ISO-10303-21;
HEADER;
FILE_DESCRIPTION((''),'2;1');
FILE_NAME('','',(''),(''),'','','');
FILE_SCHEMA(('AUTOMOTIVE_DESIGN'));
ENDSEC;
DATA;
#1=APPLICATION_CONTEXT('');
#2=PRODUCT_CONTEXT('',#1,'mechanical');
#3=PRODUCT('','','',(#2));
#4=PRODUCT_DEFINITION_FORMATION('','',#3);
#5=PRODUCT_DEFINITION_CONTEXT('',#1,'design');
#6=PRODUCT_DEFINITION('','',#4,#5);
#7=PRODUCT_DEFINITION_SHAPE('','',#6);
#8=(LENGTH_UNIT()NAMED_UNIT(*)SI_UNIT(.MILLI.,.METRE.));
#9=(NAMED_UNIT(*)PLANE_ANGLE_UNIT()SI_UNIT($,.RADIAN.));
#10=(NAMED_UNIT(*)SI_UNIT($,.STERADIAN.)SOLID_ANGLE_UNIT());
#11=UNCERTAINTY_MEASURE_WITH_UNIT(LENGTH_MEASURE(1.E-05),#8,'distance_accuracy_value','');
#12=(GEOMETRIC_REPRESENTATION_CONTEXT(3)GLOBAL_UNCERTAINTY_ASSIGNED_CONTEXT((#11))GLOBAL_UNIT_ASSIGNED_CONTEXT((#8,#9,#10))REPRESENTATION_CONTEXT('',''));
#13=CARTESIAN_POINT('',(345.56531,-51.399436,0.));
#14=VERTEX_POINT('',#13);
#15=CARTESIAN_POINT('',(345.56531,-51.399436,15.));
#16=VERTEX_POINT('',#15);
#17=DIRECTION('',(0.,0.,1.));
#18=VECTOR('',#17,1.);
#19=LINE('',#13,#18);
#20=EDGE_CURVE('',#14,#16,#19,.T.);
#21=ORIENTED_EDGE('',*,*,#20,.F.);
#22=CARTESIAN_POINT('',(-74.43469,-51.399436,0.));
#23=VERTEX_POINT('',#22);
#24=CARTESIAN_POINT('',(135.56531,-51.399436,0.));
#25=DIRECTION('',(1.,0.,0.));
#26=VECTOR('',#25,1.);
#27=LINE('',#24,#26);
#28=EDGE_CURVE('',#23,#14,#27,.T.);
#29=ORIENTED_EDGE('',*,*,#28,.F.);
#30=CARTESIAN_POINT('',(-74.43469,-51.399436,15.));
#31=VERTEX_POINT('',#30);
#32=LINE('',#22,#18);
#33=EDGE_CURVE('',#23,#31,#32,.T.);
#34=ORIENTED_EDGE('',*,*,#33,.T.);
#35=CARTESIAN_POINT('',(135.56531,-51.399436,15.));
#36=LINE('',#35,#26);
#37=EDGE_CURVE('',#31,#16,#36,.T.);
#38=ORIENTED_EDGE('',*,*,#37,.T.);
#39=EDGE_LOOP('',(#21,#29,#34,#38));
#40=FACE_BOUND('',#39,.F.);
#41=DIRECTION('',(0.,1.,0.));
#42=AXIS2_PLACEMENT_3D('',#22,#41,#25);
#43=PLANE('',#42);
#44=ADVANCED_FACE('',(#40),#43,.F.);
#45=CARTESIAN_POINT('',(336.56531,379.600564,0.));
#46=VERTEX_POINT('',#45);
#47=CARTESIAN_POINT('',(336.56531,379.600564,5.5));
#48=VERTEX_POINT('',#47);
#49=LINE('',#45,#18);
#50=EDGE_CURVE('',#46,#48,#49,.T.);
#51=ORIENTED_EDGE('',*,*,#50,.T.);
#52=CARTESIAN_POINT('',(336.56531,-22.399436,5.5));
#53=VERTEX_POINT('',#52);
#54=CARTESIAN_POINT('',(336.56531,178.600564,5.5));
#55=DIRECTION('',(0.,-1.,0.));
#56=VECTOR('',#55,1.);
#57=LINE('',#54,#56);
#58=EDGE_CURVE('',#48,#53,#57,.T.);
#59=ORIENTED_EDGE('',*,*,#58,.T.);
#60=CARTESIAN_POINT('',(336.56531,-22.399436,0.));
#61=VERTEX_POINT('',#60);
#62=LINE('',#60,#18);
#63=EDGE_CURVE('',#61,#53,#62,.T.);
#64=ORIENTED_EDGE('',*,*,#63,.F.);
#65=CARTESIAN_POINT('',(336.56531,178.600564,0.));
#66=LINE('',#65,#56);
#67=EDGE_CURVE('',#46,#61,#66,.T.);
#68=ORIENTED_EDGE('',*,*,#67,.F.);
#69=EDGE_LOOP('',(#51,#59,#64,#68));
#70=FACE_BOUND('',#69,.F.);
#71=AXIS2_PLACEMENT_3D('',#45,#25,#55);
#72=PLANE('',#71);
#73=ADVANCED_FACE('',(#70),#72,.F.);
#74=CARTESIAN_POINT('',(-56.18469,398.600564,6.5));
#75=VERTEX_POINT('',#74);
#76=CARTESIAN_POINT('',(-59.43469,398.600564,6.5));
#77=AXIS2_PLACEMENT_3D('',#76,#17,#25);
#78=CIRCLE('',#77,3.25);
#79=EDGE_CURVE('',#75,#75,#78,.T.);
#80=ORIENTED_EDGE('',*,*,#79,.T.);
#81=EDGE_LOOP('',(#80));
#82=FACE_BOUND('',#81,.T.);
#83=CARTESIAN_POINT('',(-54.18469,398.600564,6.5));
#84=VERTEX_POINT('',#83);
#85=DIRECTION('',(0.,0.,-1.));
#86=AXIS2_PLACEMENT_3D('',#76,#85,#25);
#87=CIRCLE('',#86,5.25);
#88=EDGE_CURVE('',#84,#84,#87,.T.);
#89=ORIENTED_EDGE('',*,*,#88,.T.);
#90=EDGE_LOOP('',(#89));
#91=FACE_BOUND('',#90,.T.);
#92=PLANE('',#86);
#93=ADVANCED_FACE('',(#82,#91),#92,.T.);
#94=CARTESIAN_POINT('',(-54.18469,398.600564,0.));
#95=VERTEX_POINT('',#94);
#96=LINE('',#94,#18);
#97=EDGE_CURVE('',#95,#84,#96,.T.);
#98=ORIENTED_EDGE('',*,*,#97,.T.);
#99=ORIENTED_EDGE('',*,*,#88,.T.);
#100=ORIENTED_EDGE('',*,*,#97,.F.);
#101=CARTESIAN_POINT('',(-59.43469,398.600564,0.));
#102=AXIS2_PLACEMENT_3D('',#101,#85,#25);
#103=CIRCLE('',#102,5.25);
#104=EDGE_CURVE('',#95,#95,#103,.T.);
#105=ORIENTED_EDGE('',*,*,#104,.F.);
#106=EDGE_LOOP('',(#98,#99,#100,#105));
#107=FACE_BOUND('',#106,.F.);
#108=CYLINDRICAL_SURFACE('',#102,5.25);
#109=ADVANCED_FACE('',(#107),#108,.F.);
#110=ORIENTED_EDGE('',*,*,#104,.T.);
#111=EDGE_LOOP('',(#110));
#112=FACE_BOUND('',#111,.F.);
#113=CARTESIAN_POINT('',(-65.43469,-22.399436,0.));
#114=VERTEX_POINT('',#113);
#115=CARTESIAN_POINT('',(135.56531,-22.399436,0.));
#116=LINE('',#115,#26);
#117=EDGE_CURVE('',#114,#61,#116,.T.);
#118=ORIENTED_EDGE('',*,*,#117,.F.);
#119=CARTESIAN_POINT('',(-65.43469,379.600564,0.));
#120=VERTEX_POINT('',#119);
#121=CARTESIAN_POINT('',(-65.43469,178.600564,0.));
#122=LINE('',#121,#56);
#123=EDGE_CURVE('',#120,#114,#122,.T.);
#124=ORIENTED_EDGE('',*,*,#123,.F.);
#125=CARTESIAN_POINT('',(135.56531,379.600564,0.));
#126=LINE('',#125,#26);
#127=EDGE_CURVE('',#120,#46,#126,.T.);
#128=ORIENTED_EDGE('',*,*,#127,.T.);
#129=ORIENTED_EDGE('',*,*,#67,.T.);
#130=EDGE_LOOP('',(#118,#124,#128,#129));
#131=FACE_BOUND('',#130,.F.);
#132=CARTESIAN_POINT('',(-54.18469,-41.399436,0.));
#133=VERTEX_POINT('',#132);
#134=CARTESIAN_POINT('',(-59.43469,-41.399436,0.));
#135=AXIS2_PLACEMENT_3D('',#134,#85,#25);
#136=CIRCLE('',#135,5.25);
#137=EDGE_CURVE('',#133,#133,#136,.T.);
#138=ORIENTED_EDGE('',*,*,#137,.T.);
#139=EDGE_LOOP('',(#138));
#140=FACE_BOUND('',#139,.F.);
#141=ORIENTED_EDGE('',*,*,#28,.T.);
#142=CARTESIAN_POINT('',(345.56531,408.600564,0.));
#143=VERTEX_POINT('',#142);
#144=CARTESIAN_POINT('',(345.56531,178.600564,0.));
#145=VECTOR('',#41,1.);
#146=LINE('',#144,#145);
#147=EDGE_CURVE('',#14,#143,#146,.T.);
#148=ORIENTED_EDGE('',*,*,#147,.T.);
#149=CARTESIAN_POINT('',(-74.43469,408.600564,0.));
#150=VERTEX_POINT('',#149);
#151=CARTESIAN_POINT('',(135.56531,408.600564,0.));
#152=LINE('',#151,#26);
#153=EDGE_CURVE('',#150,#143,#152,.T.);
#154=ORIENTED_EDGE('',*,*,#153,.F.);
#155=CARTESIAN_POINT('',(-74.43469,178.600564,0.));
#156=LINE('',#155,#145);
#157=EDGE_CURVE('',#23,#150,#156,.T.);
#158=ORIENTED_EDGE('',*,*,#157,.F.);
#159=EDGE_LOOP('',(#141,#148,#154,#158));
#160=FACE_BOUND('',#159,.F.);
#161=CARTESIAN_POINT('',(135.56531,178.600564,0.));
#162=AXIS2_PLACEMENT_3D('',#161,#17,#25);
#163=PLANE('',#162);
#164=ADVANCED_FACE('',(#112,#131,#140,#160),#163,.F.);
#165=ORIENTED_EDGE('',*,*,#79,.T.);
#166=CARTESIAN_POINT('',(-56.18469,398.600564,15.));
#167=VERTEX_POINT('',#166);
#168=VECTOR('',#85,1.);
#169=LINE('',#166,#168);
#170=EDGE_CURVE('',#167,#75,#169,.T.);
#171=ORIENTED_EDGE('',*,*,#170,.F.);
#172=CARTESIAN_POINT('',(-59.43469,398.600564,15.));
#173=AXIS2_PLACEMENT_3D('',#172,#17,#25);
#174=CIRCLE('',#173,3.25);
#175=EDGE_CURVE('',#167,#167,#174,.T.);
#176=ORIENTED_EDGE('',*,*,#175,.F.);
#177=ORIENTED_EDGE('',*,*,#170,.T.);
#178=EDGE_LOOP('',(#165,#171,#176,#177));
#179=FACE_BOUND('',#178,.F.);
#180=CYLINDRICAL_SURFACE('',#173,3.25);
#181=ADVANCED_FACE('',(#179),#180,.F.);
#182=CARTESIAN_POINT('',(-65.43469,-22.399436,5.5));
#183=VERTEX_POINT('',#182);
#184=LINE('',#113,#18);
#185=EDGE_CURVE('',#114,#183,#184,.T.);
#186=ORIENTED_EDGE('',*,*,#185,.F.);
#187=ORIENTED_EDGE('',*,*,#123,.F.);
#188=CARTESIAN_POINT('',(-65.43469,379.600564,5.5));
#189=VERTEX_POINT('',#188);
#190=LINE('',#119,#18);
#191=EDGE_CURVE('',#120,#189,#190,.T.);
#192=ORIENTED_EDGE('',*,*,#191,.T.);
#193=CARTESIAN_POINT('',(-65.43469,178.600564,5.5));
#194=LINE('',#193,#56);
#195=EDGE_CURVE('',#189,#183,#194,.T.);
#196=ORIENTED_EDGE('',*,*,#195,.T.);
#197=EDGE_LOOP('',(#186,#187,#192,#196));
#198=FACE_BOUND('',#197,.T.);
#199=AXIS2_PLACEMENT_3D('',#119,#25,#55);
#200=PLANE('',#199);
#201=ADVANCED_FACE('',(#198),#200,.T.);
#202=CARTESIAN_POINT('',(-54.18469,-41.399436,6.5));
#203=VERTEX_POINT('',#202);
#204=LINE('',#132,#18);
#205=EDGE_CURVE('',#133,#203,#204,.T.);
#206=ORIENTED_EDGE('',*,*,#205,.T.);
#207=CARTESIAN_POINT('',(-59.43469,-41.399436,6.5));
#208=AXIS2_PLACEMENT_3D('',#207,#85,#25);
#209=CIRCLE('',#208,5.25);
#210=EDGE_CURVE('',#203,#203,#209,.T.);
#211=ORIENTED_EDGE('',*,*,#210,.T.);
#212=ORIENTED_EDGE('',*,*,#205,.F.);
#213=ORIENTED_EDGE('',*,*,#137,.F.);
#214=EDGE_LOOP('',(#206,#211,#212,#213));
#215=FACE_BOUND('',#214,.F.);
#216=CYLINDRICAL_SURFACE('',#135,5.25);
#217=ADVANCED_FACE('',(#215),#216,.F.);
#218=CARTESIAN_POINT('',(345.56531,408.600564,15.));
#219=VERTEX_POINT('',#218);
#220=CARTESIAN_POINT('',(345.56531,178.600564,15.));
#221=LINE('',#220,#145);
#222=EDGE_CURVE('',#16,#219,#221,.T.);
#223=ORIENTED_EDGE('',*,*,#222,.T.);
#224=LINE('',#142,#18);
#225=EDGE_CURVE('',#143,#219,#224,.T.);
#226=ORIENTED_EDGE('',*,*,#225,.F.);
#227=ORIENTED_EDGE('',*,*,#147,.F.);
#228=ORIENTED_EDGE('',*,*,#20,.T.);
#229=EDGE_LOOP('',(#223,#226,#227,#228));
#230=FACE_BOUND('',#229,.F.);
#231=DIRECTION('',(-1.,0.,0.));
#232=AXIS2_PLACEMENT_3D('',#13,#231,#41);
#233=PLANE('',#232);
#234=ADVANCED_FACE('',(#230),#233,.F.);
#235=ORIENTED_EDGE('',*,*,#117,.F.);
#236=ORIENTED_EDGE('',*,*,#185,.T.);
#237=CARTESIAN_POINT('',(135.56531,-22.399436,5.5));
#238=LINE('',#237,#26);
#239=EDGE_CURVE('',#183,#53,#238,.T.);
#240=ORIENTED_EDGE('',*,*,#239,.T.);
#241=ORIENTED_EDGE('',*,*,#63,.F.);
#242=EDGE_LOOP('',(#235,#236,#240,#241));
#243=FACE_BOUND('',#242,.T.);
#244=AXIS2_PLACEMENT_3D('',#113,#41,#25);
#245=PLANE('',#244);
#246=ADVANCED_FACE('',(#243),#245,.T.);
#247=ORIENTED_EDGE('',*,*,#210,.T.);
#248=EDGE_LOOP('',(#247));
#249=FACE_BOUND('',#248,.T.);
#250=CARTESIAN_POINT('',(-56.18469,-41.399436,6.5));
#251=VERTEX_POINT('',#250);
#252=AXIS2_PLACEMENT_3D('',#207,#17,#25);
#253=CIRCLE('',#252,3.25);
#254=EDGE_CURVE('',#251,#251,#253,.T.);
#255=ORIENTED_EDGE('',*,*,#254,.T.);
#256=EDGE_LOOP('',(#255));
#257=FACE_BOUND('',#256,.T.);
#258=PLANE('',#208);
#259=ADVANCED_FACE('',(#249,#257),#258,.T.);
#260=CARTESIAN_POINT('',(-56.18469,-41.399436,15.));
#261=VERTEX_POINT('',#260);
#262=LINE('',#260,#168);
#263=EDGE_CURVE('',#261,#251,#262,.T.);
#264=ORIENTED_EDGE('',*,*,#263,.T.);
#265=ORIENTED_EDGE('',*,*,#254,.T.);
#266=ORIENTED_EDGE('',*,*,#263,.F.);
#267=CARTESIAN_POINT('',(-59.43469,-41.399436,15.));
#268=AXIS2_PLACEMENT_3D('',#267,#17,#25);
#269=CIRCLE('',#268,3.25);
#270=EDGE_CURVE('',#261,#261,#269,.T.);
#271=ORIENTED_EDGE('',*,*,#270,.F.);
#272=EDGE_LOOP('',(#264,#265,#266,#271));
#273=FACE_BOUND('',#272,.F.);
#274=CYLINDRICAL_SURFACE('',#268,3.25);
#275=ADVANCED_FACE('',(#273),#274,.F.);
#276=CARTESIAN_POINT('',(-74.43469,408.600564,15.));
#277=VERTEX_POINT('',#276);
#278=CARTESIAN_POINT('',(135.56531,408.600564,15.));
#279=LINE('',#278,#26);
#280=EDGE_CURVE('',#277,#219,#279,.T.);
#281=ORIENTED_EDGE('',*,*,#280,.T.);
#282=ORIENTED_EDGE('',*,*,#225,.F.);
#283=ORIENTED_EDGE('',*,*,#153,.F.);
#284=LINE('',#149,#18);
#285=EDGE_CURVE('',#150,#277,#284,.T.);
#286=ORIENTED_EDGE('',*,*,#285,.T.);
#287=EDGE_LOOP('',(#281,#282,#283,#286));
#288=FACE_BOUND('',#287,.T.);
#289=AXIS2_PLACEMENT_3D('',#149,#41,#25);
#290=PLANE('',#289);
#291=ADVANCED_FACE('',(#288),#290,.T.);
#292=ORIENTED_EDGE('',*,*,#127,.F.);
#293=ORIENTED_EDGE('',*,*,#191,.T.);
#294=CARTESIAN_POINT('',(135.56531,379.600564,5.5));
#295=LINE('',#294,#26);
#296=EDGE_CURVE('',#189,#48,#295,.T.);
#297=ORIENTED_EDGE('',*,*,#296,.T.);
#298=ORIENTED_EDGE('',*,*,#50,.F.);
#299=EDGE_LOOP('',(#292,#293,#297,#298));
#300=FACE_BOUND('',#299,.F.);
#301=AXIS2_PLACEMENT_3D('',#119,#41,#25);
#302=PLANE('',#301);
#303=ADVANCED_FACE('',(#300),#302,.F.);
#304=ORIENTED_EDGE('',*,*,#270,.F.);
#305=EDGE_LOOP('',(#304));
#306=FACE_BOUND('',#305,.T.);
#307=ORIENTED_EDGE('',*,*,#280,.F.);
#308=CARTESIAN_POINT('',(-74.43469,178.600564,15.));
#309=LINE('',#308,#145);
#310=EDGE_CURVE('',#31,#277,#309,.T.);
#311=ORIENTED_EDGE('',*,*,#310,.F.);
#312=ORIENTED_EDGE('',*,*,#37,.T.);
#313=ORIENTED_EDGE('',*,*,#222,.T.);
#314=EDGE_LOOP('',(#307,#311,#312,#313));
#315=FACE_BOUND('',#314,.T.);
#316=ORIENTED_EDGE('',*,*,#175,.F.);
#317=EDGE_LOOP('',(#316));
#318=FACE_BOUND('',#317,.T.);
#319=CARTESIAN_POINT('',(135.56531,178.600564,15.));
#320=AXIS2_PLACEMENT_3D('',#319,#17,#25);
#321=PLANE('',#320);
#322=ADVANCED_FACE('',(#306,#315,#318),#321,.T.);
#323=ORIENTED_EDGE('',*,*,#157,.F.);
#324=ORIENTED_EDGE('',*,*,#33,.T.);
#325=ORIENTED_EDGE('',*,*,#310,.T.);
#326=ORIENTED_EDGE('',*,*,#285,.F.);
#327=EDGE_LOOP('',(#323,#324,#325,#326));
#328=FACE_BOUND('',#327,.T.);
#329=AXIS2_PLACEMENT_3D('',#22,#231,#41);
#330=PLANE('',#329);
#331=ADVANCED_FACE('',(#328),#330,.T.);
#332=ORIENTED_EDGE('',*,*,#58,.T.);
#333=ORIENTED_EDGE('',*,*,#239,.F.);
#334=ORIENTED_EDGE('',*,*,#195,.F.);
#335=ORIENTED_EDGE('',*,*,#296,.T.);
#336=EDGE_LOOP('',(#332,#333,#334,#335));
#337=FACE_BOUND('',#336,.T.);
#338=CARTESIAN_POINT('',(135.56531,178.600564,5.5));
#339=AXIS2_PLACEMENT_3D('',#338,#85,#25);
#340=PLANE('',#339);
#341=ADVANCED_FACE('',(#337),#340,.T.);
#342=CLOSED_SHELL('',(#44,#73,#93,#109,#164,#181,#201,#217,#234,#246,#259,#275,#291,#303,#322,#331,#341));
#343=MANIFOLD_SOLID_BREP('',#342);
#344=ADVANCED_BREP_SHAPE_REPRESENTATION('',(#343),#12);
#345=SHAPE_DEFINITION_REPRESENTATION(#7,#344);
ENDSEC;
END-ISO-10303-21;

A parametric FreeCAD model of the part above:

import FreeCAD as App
import Part
import Sketcher

V = App.Vector
Q = App.Units.Quantity

doc = App.newDocument("Part")
body = doc.addObject("PartDesign::Body", "Body")

# Sketch on XY plane
sketch1 = doc.addObject("Sketcher::SketchObject", "Sketch")
body.addObject(sketch1)
sketch1.AttachmentSupport = (doc.XY_Plane, [""])
sketch1.MapMode = "FlatFace"
sketch1.addGeometry([
    Part.LineSegment(V(-74, 409, 0), V(-74, -51, 0)),
    Part.LineSegment(V(-74, -51, 0), V(346, -51, 0)),
    Part.LineSegment(V(346, -51, 0), V(346, 409, 0)),
    Part.LineSegment(V(346, 409, 0), V(-74, 409, 0)),
], False)
sketch1.addConstraint([
    Sketcher.Constraint("Coincident", 0, 2, 1, 1),
    Sketcher.Constraint("Coincident", 1, 2, 2, 1),
    Sketcher.Constraint("Coincident", 2, 2, 3, 1),
    Sketcher.Constraint("Coincident", 3, 2, 0, 1),
    Sketcher.Constraint("Vertical", 0),
    Sketcher.Constraint("Horizontal", 1),
    Sketcher.Constraint("Vertical", 2),
    Sketcher.Constraint("Horizontal", 3),
    Sketcher.Constraint("DistanceX", 1, 1, 1, 2, Q("420 mm")),
    Sketcher.Constraint("DistanceY", 0, 2, 0, 1, Q("460 mm")),
    Sketcher.Constraint("DistanceX", 0, 2, -1, 1, Q("74.43469 mm")),
    Sketcher.Constraint("DistanceY", 0, 2, -1, 1, Q("51.399436 mm")),
])
pad1 = doc.addObject("PartDesign::Pad", "Pad")
body.addObject(pad1)
pad1.Profile = sketch1
pad1.Length = 15

# Sketch on XY plane
sketch2 = doc.addObject("Sketcher::SketchObject", "Sketch001")
body.addObject(sketch2)
sketch2.AttachmentSupport = (doc.XY_Plane, [""])
sketch2.MapMode = "FlatFace"
sketch2.AttachmentOffset = App.Placement(V(0, 0, 15), App.Rotation())
sketch2.addGeometry([
    Part.Circle(V(-59.4, -41.4, 0), V(0, 0, 1), 3.2),
    Part.Circle(V(-59.4, 398.6, 0), V(0, 0, 1), 3.2),
], False)
sketch2.addConstraint([
    Sketcher.Constraint("Equal", 0, 1),
    Sketcher.Constraint("Vertical", 0, 3, 1, 3),
    Sketcher.Constraint("Diameter", 0, Q("6.5 mm")),
    Sketcher.Constraint("DistanceY", 0, 3, 1, 3, Q("440 mm")),
    Sketcher.Constraint("DistanceX", 0, 3, -1, 1, Q("59.43469 mm")),
    Sketcher.Constraint("DistanceY", 0, 3, -1, 1, Q("41.399436 mm")),
])
pocket1 = doc.addObject("PartDesign::Pocket", "Pocket")
body.addObject(pocket1)
pocket1.Profile = sketch2
pocket1.Length = 15

# Sketch on XY plane
sketch3 = doc.addObject("Sketcher::SketchObject", "Sketch002")
body.addObject(sketch3)
sketch3.AttachmentSupport = (doc.XY_Plane, [""])
sketch3.MapMode = "FlatFace"
sketch3.addGeometry([
    Part.LineSegment(V(-65, -22, 0), V(-65, 380, 0)),
    Part.LineSegment(V(-65, 380, 0), V(337, 380, 0)),
    Part.LineSegment(V(337, 380, 0), V(337, -22, 0)),
    Part.LineSegment(V(337, -22, 0), V(-65, -22, 0)),
], False)
sketch3.addConstraint([
    Sketcher.Constraint("Coincident", 0, 2, 1, 1),
    Sketcher.Constraint("Coincident", 1, 2, 2, 1),
    Sketcher.Constraint("Coincident", 2, 2, 3, 1),
    Sketcher.Constraint("Coincident", 3, 2, 0, 1),
    Sketcher.Constraint("Vertical", 0),
    Sketcher.Constraint("Horizontal", 1),
    Sketcher.Constraint("Vertical", 2),
    Sketcher.Constraint("Horizontal", 3),
    Sketcher.Constraint("Equal", 3, 0),
    Sketcher.Constraint("DistanceX", 1, 1, 1, 2, Q("402 mm")),
    Sketcher.Constraint("DistanceX", 0, 2, -1, 1, Q("65.43469 mm")),
    Sketcher.Constraint("DistanceY", -1, 1, 0, 2, Q("379.600564 mm")),
])
pocket2 = doc.addObject("PartDesign::Pocket", "Pocket001")
body.addObject(pocket2)
pocket2.Profile = sketch3
pocket2.Length = 5.5
pocket2.Reversed = True

# Sketch on XY plane
sketch4 = doc.addObject("Sketcher::SketchObject", "Sketch003")
body.addObject(sketch4)
sketch4.AttachmentSupport = (doc.XY_Plane, [""])
sketch4.MapMode = "FlatFace"
sketch4.addGeometry([
    Part.Circle(V(-59, 399, 0), V(0, 0, 1), 5),
    Part.Circle(V(-59, -41, 0), V(0, 0, 1), 5),
], False)
sketch4.addConstraint([
    Sketcher.Constraint("Equal", 0, 1),
    Sketcher.Constraint("Vertical", 0, 3, 1, 3),
    Sketcher.Constraint("Diameter", 0, Q("10.5 mm")),
    Sketcher.Constraint("DistanceY", 1, 3, 0, 3, Q("440 mm")),
    Sketcher.Constraint("DistanceX", 0, 3, -1, 1, Q("59.43469 mm")),
    Sketcher.Constraint("DistanceY", -1, 1, 0, 3, Q("398.600564 mm")),
])
pocket3 = doc.addObject("PartDesign::Pocket", "Pocket002")
body.addObject(pocket3)
pocket3.Profile = sketch4
pocket3.Length = 6.5
pocket3.Reversed = True

# Sketch on XY plane
sketch5 = doc.addObject("Sketcher::SketchObject", "Sketch004")
body.addObject(sketch5)
sketch5.AttachmentSupport = (doc.XY_Plane, [""])
sketch5.MapMode = "FlatFace"
sketch5.addGeometry([
    Part.Circle(V(-59, 399, 0), V(0, 0, 1), 5),
    Part.Circle(V(-59, -41, 0), V(0, 0, 1), 5),
], False)
sketch5.addConstraint([
    Sketcher.Constraint("Equal", 0, 1),
    Sketcher.Constraint("Vertical", 0, 3, 1, 3),
    Sketcher.Constraint("Diameter", 0, Q("10.5 mm")),
    Sketcher.Constraint("DistanceY", 1, 3, 0, 3, Q("440 mm")),
    Sketcher.Constraint("DistanceX", 0, 3, -1, 1, Q("59.43469 mm")),
    Sketcher.Constraint("DistanceY", -1, 1, 0, 3, Q("398.600564 mm")),
])
pocket4 = doc.addObject("PartDesign::Pocket", "Pocket003")
body.addObject(pocket4)
pocket4.Profile = sketch5
pocket4.Length = 6.5
pocket4.Reversed = True

doc.recompute()
